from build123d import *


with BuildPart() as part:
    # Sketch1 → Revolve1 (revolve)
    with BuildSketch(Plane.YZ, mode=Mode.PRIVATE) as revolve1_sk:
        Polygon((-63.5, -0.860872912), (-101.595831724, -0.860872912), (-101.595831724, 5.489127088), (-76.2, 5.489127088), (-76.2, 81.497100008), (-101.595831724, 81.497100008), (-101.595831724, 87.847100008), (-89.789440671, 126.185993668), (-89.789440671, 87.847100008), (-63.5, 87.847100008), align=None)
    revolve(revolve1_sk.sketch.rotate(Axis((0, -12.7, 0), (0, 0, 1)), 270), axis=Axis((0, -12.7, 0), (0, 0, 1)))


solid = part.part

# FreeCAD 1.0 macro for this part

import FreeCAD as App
import Part
import Sketcher
Q = App.Units.Quantity

doc = App.newDocument("Part")
params = doc.addObject("Spreadsheet::Sheet", "Params")
for row, (alias, value) in enumerate([
    ("sketch1_height", "0.25 in"),
    ("revolution_angle", "360 deg"),
], start=1):
    params.set(f"A{row}", alias)
    params.set(f"B{row}", "=" + value)
    params.setAlias(f"B{row}", alias)

body = doc.addObject("PartDesign::Body", "Body")

# Sketch on YZ plane
sketch1 = body.newObject("Sketcher::SketchObject", "Sketch")
sketch1.AttachmentSupport = (doc.getObject("YZ_Plane"), [""])
sketch1.MapMode = "FlatFace"
sketch1.addGeometry([
    Part.LineSegment(App.Vector(-102, -1, 0), App.Vector(-64, -1, 0)),  # 0
    Part.LineSegment(App.Vector(-64, -1, 0), App.Vector(-64, 88, 0)),  # 1
    Part.LineSegment(App.Vector(-64, 88, 0), App.Vector(-90, 88, 0)),  # 2
    Part.LineSegment(App.Vector(-90, 88, 0), App.Vector(-90, 126, 0)),  # 3
    Part.LineSegment(App.Vector(-90, 126, 0), App.Vector(-102, 88, 0)),  # 4
    Part.LineSegment(App.Vector(-102, 88, 0), App.Vector(-102, 81, 0)),  # 5
    Part.LineSegment(App.Vector(-102, 81, 0), App.Vector(-76, 81, 0)),  # 6
    Part.LineSegment(App.Vector(-76, 81, 0), App.Vector(-76, 5, 0)),  # 7
    Part.LineSegment(App.Vector(-76, 5, 0), App.Vector(-102, 5, 0)),  # 8
    Part.LineSegment(App.Vector(-102, 5, 0), App.Vector(-102, -1, 0)),  # 9
], False)
sketch1.addGeometry(Part.LineSegment(App.Vector(-13, -1, 0), App.Vector(-13, 126, 0)), True)  # axis
sketch1.addConstraint([
    Sketcher.Constraint("Coincident", 0, 2, 1, 1),
    Sketcher.Constraint("Coincident", 1, 2, 2, 1),
    Sketcher.Constraint("Coincident", 2, 2, 3, 1),
    Sketcher.Constraint("Coincident", 3, 2, 4, 1),
    Sketcher.Constraint("Coincident", 4, 2, 5, 1),
    Sketcher.Constraint("Coincident", 5, 2, 6, 1),
    Sketcher.Constraint("Coincident", 6, 2, 7, 1),
    Sketcher.Constraint("Coincident", 7, 2, 8, 1),
    Sketcher.Constraint("Coincident", 8, 2, 9, 1),
    Sketcher.Constraint("Coincident", 9, 2, 0, 1),
    Sketcher.Constraint("Horizontal", 0),
    Sketcher.Constraint("Vertical", 1),
    Sketcher.Constraint("Horizontal", 2),
    Sketcher.Constraint("Vertical", 3),
    Sketcher.Constraint("Vertical", 5),
    Sketcher.Constraint("Horizontal", 6),
    Sketcher.Constraint("Vertical", 7),
    Sketcher.Constraint("Horizontal", 8),
    Sketcher.Constraint("Vertical", 9),
    Sketcher.Constraint("Vertical", 10),
    Sketcher.Constraint("Horizontal", 2, 2, 4, 2),
    Sketcher.Constraint("Horizontal", 9, 2, 10, 1),
    Sketcher.Constraint("Horizontal", 3, 2, 10, 2),
    Sketcher.Constraint("Vertical", 5, 2, 8, 2),
    Sketcher.Constraint("Equal", 5, 9),
    Sketcher.Constraint("DistanceX", 6, 2, -1, 1, Q("3 in")),
    Sketcher.Constraint("DistanceX", 0, 2, 10, 1, Q("2 in")),
    Sketcher.Constraint("DistanceY", 5, 2, 5, 1, Q("0.25 in")),
    Sketcher.Constraint("DistanceX", 0, 2, -1, 1, Q("2.5 in")),
    Sketcher.Constraint("DistanceX", 0, 1, 0, 2, 38.095832),
    Sketcher.Constraint("DistanceX", 2, 2, 2, 1, 26.289441),
    Sketcher.Constraint("DistanceY", -1, 1, 1, 2, 87.8471),
    Sketcher.Constraint("DistanceY", 1, 1, 1, 2, 88.707973),
    Sketcher.Constraint("DistanceY", 3, 1, 3, 2, 38.338894),
])
sketch1.setExpression("Constraints[27]", "Params.sketch1_height")
revolution = body.newObject("PartDesign::Revolution", "Revolution")
revolution.Profile = sketch1
revolution.ReferenceAxis = (sketch1, ["Axis0"])
revolution.setExpression("Angle", "Params.revolution_angle")

doc.recompute()
